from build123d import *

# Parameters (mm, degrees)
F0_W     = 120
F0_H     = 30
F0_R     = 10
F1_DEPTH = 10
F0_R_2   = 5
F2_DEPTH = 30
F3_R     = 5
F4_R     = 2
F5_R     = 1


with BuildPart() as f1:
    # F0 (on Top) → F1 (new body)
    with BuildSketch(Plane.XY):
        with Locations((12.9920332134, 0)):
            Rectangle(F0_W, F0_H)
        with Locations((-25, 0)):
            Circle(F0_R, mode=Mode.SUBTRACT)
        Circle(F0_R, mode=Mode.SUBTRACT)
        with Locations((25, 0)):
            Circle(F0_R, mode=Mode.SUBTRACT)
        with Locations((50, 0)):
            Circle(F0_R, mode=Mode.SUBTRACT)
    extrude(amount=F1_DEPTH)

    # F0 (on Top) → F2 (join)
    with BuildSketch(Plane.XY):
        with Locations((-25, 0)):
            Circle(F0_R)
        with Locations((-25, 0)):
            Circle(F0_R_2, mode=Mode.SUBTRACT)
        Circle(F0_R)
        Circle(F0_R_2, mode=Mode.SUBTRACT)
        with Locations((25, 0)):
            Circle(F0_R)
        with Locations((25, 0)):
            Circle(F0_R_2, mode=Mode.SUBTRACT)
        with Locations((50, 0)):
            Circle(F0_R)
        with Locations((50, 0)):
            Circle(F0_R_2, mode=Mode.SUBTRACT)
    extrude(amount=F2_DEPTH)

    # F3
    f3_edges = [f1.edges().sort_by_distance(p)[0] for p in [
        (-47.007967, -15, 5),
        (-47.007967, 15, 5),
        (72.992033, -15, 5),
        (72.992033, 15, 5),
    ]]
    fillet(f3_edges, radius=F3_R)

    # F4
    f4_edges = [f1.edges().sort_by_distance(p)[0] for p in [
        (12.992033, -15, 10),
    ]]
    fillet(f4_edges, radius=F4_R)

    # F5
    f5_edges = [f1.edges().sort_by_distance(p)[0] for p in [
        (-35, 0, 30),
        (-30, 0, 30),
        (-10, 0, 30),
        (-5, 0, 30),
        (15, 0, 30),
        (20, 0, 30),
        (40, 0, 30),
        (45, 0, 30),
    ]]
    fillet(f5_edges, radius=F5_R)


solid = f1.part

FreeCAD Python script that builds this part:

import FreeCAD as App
import Part
import Sketcher
Q = App.Units.Quantity


def edges_at(feature, points):
    """Names of the edges that pass closest to the given points."""
    edges = feature.Shape.Edges
    near = lambda p: min(range(len(edges)), key=lambda i: edges[i].distToShape(Part.Vertex(*p))[0])
    return sorted({f"Edge{near(p) + 1}" for p in points})

doc = App.newDocument("Part")
body = doc.addObject("PartDesign::Body", "Body")

# Sketch on XY plane
sketch1 = body.newObject("Sketcher::SketchObject", "Sketch")
sketch1.AttachmentSupport = (doc.getObject("XY_Plane"), [""])
sketch1.MapMode = "FlatFace"
sketch1.addGeometry([
    Part.LineSegment(App.Vector(-47.007967, 15, 0), App.Vector(-47.007967, -15, 0)),  # 0
    Part.LineSegment(App.Vector(-47.007967, -15, 0), App.Vector(72.992033, -15, 0)),  # 1
    Part.LineSegment(App.Vector(72.992033, -15, 0), App.Vector(72.992033, 15, 0)),  # 2
    Part.LineSegment(App.Vector(72.992033, 15, 0), App.Vector(-47.007967, 15, 0)),  # 3
    Part.Circle(App.Vector(-25, 0, 0), App.Vector(0, 0, 1), 10),  # 4
    Part.Circle(App.Vector(0, 0, 0), App.Vector(0, 0, 1), 10),  # 5
    Part.Circle(App.Vector(25, 0, 0), App.Vector(0, 0, 1), 10),  # 6
    Part.Circle(App.Vector(50, 0, 0), App.Vector(0, 0, 1), 10),  # 7
], False)
sketch1.addConstraint([
    Sketcher.Constraint("Coincident", 0, 2, 1, 1),
    Sketcher.Constraint("Coincident", 1, 2, 2, 1),
    Sketcher.Constraint("Coincident", 2, 2, 3, 1),
    Sketcher.Constraint("Coincident", 3, 2, 0, 1),
    Sketcher.Constraint("Vertical", 0),
    Sketcher.Constraint("Horizontal", 1),
    Sketcher.Constraint("Vertical", 2),
    Sketcher.Constraint("Horizontal", 3),
    Sketcher.Constraint("Coincident", 5, 3, -1, 1),
    Sketcher.Constraint("Equal", 4, 5),
    Sketcher.Constraint("Equal", 5, 6),
    Sketcher.Constraint("Equal", 6, 7),
    Sketcher.Constraint("Symmetric", 4, 3, 6, 3, -1, 1),
    Sketcher.Constraint("PointOnObject", 4, 3, -1),
    Sketcher.Constraint("PointOnObject", 7, 3, -1),
    Sketcher.Constraint("Diameter", 4, Q("20 mm")),
    Sketcher.Constraint("DistanceX", 1, 1, 1, 2, Q("120 mm")),
    Sketcher.Constraint("DistanceY", 0, 2, 0, 1, Q("30 mm")),
    Sketcher.Constraint("DistanceX", 4, 3, -1, 1, Q("25 mm")),
    Sketcher.Constraint("DistanceX", -1, 1, 7, 3, Q("50 mm")),
    Sketcher.Constraint("DistanceY", 0, 2, -1, 1, Q("15 mm")),
    Sketcher.Constraint("DistanceX", 0, 2, -1, 1, Q("47.007967 mm")),
])
pad1 = body.newObject("PartDesign::Pad", "Pad")
pad1.Profile = sketch1
pad1.Length = 10

# Sketch on XY plane
sketch2 = body.newObject("Sketcher::SketchObject", "Sketch001")
sketch2.AttachmentSupport = (doc.getObject("XY_Plane"), [""])
sketch2.MapMode = "FlatFace"
sketch2.addGeometry([
    Part.Circle(App.Vector(-25, 0, 0), App.Vector(0, 0, 1), 10),  # 0
    Part.Circle(App.Vector(-25, 0, 0), App.Vector(0, 0, 1), 5),  # 1
    Part.Circle(App.Vector(0, 0, 0), App.Vector(0, 0, 1), 10),  # 2
    Part.Circle(App.Vector(0, 0, 0), App.Vector(0, 0, 1), 5),  # 3
    Part.Circle(App.Vector(25, 0, 0), App.Vector(0, 0, 1), 10),  # 4
    Part.Circle(App.Vector(25, 0, 0), App.Vector(0, 0, 1), 5),  # 5
    Part.Circle(App.Vector(50, 0, 0), App.Vector(0, 0, 1), 10),  # 6
    Part.Circle(App.Vector(50, 0, 0), App.Vector(0, 0, 1), 5),  # 7
], False)
sketch2.addConstraint([
    Sketcher.Constraint("Coincident", 2, 3, -1, 1),
    Sketcher.Constraint("Coincident", 3, 3, -1, 1),
    Sketcher.Constraint("Coincident", 1, 3, 0, 3),
    Sketcher.Constraint("Coincident", 5, 3, 4, 3),
    Sketcher.Constraint("Coincident", 7, 3, 6, 3),
    Sketcher.Constraint("Equal", 0, 2),
    Sketcher.Constraint("Equal", 1, 3),
    Sketcher.Constraint("Equal", 2, 4),
    Sketcher.Constraint("Equal", 3, 5),
    Sketcher.Constraint("Equal", 4, 6),
    Sketcher.Constraint("Equal", 5, 7),
    Sketcher.Constraint("Symmetric", 0, 3, 4, 3, -1, 1),
    Sketcher.Constraint("PointOnObject", 0, 3, -1),
    Sketcher.Constraint("PointOnObject", 6, 3, -1),
    Sketcher.Constraint("Diameter", 0, Q("20 mm")),
    Sketcher.Constraint("Diameter", 1, Q("10 mm")),
    Sketcher.Constraint("DistanceX", 0, 3, -1, 1, Q("25 mm")),
    Sketcher.Constraint("DistanceX", -1, 1, 6, 3, Q("50 mm")),
])
pad2 = body.newObject("PartDesign::Pad", "Pad001")
pad2.Profile = sketch2
pad2.Length = 30
doc.recompute()

fillet = body.newObject("PartDesign::Fillet", "Fillet")
fillet.Base = (pad2, edges_at(pad2, [
    (-47.008, -15, 5),
    (-47.008, 15, 5),
    (72.992, -15, 5),
    (72.992, 15, 5),
]))
fillet.Radius = 5
doc.recompute()

fillet2 = body.newObject("PartDesign::Fillet", "Fillet001")
fillet2.Base = (fillet, edges_at(fillet, [(12.992, -15, 10)]))
fillet2.Radius = 2
doc.recompute()

fillet3 = body.newObject("PartDesign::Fillet", "Fillet002")
fillet3.Base = (fillet2, edges_at(fillet2, [
    (-35, 0, 30),
    (-30, 0, 30),
    (-10, 0, 30),
    (-5, 0, 30),
    (15, 0, 30),
    (20, 0, 30),
    (40, 0, 30),
    (45, 0, 30),
]))
fillet3.Radius = 1

doc.recompute()
